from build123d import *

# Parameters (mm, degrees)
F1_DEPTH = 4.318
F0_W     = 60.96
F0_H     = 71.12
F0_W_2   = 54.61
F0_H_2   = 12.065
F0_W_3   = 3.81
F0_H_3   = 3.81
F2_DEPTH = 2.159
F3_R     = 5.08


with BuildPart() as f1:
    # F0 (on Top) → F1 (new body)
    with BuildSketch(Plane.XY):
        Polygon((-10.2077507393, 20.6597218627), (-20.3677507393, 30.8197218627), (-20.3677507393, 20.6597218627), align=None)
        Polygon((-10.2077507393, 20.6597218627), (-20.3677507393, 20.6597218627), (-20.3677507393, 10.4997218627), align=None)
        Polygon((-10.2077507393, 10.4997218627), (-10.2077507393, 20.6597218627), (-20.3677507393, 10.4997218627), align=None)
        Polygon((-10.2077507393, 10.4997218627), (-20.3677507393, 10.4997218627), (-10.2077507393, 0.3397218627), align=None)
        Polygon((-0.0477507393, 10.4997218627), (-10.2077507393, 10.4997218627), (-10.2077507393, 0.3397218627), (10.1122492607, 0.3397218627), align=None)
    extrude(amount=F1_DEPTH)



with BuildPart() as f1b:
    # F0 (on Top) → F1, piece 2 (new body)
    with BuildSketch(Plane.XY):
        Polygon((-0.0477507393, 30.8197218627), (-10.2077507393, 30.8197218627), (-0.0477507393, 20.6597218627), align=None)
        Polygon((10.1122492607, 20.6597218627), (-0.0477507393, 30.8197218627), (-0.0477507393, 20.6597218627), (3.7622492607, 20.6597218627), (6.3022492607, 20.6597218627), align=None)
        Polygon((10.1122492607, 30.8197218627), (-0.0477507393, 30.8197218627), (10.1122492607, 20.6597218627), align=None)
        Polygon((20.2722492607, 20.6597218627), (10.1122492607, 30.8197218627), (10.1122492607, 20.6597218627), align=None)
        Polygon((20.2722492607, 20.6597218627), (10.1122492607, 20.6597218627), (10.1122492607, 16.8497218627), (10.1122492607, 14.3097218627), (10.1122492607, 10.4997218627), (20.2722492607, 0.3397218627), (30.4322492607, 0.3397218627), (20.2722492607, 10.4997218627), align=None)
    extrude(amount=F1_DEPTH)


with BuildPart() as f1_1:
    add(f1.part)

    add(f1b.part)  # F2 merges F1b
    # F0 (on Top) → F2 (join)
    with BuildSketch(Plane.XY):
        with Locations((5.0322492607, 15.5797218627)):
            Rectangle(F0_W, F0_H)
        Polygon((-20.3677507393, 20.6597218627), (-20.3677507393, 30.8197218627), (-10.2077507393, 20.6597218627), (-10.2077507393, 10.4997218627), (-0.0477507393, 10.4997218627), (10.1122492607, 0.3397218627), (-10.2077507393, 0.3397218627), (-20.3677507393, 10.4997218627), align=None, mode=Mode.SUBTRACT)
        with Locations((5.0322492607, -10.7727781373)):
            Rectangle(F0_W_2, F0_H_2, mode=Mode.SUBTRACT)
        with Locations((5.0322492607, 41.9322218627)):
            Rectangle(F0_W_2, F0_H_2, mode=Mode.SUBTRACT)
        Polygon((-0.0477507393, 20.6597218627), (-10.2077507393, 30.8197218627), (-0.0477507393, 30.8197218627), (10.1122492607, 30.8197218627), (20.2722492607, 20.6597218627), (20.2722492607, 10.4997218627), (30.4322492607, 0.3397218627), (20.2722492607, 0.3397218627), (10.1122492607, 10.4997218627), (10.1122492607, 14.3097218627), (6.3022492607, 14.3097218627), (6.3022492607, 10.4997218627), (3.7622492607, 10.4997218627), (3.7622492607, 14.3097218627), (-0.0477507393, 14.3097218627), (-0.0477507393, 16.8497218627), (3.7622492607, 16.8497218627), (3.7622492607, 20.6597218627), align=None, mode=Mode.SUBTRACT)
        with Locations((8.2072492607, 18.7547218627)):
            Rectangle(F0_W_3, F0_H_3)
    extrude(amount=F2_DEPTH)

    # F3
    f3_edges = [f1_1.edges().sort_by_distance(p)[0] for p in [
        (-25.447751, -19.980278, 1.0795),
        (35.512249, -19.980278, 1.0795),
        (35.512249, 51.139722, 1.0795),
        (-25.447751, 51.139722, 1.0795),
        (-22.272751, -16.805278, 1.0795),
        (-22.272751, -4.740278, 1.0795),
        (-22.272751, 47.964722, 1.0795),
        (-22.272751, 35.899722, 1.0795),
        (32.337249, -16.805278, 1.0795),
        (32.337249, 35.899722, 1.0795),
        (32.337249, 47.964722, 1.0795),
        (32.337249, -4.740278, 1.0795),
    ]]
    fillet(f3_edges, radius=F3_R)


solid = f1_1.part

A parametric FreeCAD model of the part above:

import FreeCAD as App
import Part
import Sketcher
from FreeCAD import Vector
Q = App.Units.Quantity


def edges_at(feature, points):
    """Names of the edges that pass closest to the given points."""
    edges = feature.Shape.Edges
    near = lambda p: min(range(len(edges)), key=lambda i: edges[i].distToShape(Part.Vertex(*p))[0])
    return sorted({f"Edge{near(p) + 1}" for p in points})

doc = App.newDocument("Part")
params = doc.addObject("Spreadsheet::Sheet", "Params")
for row, (alias, value) in enumerate([
    ("sketch1_width", "0.8 in"),
    ("sketch1_width2", "0.4 in"),
    ("pad1_length", "0.17 in"),
    ("sketch2_width", "0.4 in"),
    ("pad2_length", "0.17 in"),
    ("sketch3_width", "2.4 in"),
    ("sketch3_width2", "0.4 in"),
    ("sketch3_width3", "0.1 in"),
    ("sketch3_height", "2.8 in"),
    ("sketch3_width4", "2.15 in"),
    ("pad3_length", "0.085 in"),
    ("fillet_radius", "0.2 in"),
], start=1):
    params.set(f"A{row}", alias)
    params.set(f"B{row}", "=" + value)
    params.setAlias(f"B{row}", alias)

body = doc.addObject("PartDesign::Body", "Body")

sketch1 = body.newObject("Sketcher::SketchObject", "Sketch")
sketch1.AttachmentSupport = (doc.getObject("XY_Plane"), [""])
sketch1.MapMode = "FlatFace"
sketch1.addGeometry([
    Part.LineSegment(Vector(-10, 21, 0), Vector(-20, 31, 0)),
    Part.LineSegment(Vector(-20, 31, 0), Vector(-20, 10, 0)),
    Part.LineSegment(Vector(-20, 10, 0), Vector(-10, 0, 0)),
    Part.LineSegment(Vector(-10, 0, 0), Vector(10, 0, 0)),
    Part.LineSegment(Vector(10, 0, 0), Vector(0, 10, 0)),
    Part.LineSegment(Vector(0, 10, 0), Vector(-10, 10, 0)),
    Part.LineSegment(Vector(-10, 10, 0), Vector(-10, 21, 0)),
], False)
sketch1.addConstraint([
    Sketcher.Constraint("Coincident", 0, 2, 1, 1),
    Sketcher.Constraint("Coincident", 1, 2, 2, 1),
    Sketcher.Constraint("Coincident", 2, 2, 3, 1),
    Sketcher.Constraint("Coincident", 3, 2, 4, 1),
    Sketcher.Constraint("Coincident", 4, 2, 5, 1),
    Sketcher.Constraint("Coincident", 5, 2, 6, 1),
    Sketcher.Constraint("Coincident", 6, 2, 0, 1),
    Sketcher.Constraint("Vertical", 1),
    Sketcher.Constraint("Horizontal", 3),
    Sketcher.Constraint("Horizontal", 5),
    Sketcher.Constraint("Vertical", 6),
    Sketcher.Constraint("Parallel", 0, 2),
    Sketcher.Constraint("Parallel", 2, 4),
    Sketcher.Constraint("Horizontal", 1, 2, 4, 2),
    Sketcher.Constraint("Vertical", 2, 2, 5, 2),
    Sketcher.Constraint("Equal", 3, 1),
    Sketcher.Constraint("Equal", 5, 6),
    Sketcher.Constraint("DistanceX", 3, 1, 3, 2, Q("0.8 in")),
    Sketcher.Constraint("DistanceX", 5, 2, 5, 1, Q("0.4 in")),
    Sketcher.Constraint("DistanceX", 0, 2, -1, 1, 20.367751),
    Sketcher.Constraint("DistanceY", -1, 1, 0, 2, 30.819722),
])
sketch1.setExpression("Constraints[17]", "Params.sketch1_width")
sketch1.setExpression("Constraints[18]", "Params.sketch1_width2")
pad1 = body.newObject("PartDesign::Pad", "Pad")
pad1.Profile = sketch1
pad1.setExpression("Length", "Params.pad1_length")
body2 = doc.addObject("PartDesign::Body", "Body001")

sketch2 = body2.newObject("Sketcher::SketchObject", "Sketch001")
sketch2.AttachmentSupport = (doc.getObject("XY_Plane001"), [""])
sketch2.MapMode = "FlatFace"
sketch2.addGeometry([
    Part.LineSegment(Vector(-10, 31, 0), Vector(0, 21, 0)),
    Part.LineSegment(Vector(0, 21, 0), Vector(10, 21, 0)),
    Part.LineSegment(Vector(10, 21, 0), Vector(10, 10, 0)),
    Part.LineSegment(Vector(10, 10, 0), Vector(20, 0, 0)),
    Part.LineSegment(Vector(20, 0, 0), Vector(30, 0, 0)),
    Part.LineSegment(Vector(30, 0, 0), Vector(20, 10, 0)),
    Part.LineSegment(Vector(20, 10, 0), Vector(20, 21, 0)),
    Part.LineSegment(Vector(20, 21, 0), Vector(10, 31, 0)),
    Part.LineSegment(Vector(10, 31, 0), Vector(-10, 31, 0)),
], False)
sketch2.addConstraint([
    Sketcher.Constraint("Coincident", 0, 2, 1, 1),
    Sketcher.Constraint("Coincident", 1, 2, 2, 1),
    Sketcher.Constraint("Coincident", 2, 2, 3, 1),
    Sketcher.Constraint("Coincident", 3, 2, 4, 1),
    Sketcher.Constraint("Coincident", 4, 2, 5, 1),
    Sketcher.Constraint("Coincident", 5, 2, 6, 1),
    Sketcher.Constraint("Coincident", 6, 2, 7, 1),
    Sketcher.Constraint("Coincident", 7, 2, 8, 1),
    Sketcher.Constraint("Coincident", 8, 2, 0, 1),
    Sketcher.Constraint("Horizontal", 1),
    Sketcher.Constraint("Vertical", 2),
    Sketcher.Constraint("Horizontal", 4),
    Sketcher.Constraint("Vertical", 6),
    Sketcher.Constraint("Horizontal", 8),
    Sketcher.Constraint("Parallel", 0, 3),
    Sketcher.Constraint("Parallel", 3, 5),
    Sketcher.Constraint("Parallel", 5, 7),
    Sketcher.Constraint("Horizontal", 2, 2, 5, 2),
    Sketcher.Constraint("Horizontal", 1, 2, 6, 2),
    Sketcher.Constraint("Vertical", 3, 2, 5, 2),
    Sketcher.Constraint("Vertical", 2, 2, 7, 2),
    Sketcher.Constraint("Equal", 1, 4),
    Sketcher.Constraint("Equal", 4, 2),
    Sketcher.Constraint("DistanceX", 1, 1, 1, 2, Q("0.4 in")),
    Sketcher.Constraint("Angle", 0, Q("-45 deg")),
    Sketcher.Constraint("DistanceX", 0, 2, -1, 1, 0.047751),
    Sketcher.Constraint("DistanceY", -1, 1, 0, 2, 20.659722),
])
sketch2.setExpression("Constraints[23]", "Params.sketch2_width")
pad2 = body2.newObject("PartDesign::Pad", "Pad001")
pad2.Profile = sketch2
pad2.setExpression("Length", "Params.pad2_length")
body.AllowCompound = True
doc.recompute()

boolean = body.newObject("PartDesign::Boolean", "Boolean")
boolean.Type = "Fuse"
boolean.addObjects([body2])

sketch3 = body.newObject("Sketcher::SketchObject", "Sketch002")
sketch3.AttachmentSupport = (doc.getObject("XY_Plane"), [""])
sketch3.MapMode = "FlatFace"
sketch3.addGeometry([
    Part.LineSegment(Vector(-25.4, 51.1, 0), Vector(-25.4, -20, 0)),
    Part.LineSegment(Vector(-25.4, -20, 0), Vector(35.5, -20, 0)),
    Part.LineSegment(Vector(35.5, -20, 0), Vector(35.5, 51.1, 0)),
    Part.LineSegment(Vector(35.5, 51.1, 0), Vector(-25.4, 51.1, 0)),
    Part.LineSegment(Vector(32.3, -16.8, 0), Vector(-22.3, -16.8, 0)),
    Part.LineSegment(Vector(-22.3, -16.8, 0), Vector(-22.3, -4.7, 0)),
    Part.LineSegment(Vector(-22.3, -4.7, 0), Vector(32.3, -4.7, 0)),
    Part.LineSegment(Vector(32.3, -4.7, 0), Vector(32.3, -16.8, 0)),
    Part.LineSegment(Vector(-20.4, 10.5, 0), Vector(-20.4, 30.8, 0)),
    Part.LineSegment(Vector(-20.4, 30.8, 0), Vector(-10.2, 20.7, 0)),
    Part.LineSegment(Vector(-10.2, 20.7, 0), Vector(-10.2, 10.5, 0)),
    Part.LineSegment(Vector(-10.2, 10.5, 0), Vector(0, 10.5, 0)),
    Part.LineSegment(Vector(0, 10.5, 0), Vector(10.1, 0.3, 0)),
    Part.LineSegment(Vector(10.1, 0.3, 0), Vector(-10.2, 0.3, 0)),
    Part.LineSegment(Vector(-10.2, 0.3, 0), Vector(-20.4, 10.5, 0)),
    Part.LineSegment(Vector(3.8, 20.7, 0), Vector(0, 20.7, 0)),
    Part.LineSegment(Vector(0, 20.7, 0), Vector(-10.2, 30.8, 0)),
    Part.LineSegment(Vector(-10.2, 30.8, 0), Vector(10.1, 30.8, 0)),
    Part.LineSegment(Vector(10.1, 30.8, 0), Vector(20.3, 20.7, 0)),
    Part.LineSegment(Vector(20.3, 20.7, 0), Vector(20.3, 10.5, 0)),
    Part.LineSegment(Vector(20.3, 10.5, 0), Vector(30.4, 0.3, 0)),
    Part.LineSegment(Vector(30.4, 0.3, 0), Vector(20.3, 0.3, 0)),
    Part.LineSegment(Vector(20.3, 0.3, 0), Vector(10.1, 10.5, 0)),
    Part.LineSegment(Vector(10.1, 10.5, 0), Vector(10.1, 14.3, 0)),
    Part.LineSegment(Vector(10.1, 14.3, 0), Vector(6.3, 14.3, 0)),
    Part.LineSegment(Vector(6.3, 14.3, 0), Vector(6.3, 10.5, 0)),
    Part.LineSegment(Vector(6.3, 10.5, 0), Vector(3.8, 10.5, 0)),
    Part.LineSegment(Vector(3.8, 10.5, 0), Vector(3.8, 14.3, 0)),
    Part.LineSegment(Vector(3.8, 14.3, 0), Vector(0, 14.3, 0)),
    Part.LineSegment(Vector(0, 14.3, 0), Vector(0, 16.8, 0)),
    Part.LineSegment(Vector(0, 16.8, 0), Vector(3.8, 16.8, 0)),
    Part.LineSegment(Vector(3.8, 16.8, 0), Vector(3.8, 20.7, 0)),
    Part.LineSegment(Vector(32.3, 35.9, 0), Vector(-22.3, 35.9, 0)),
    Part.LineSegment(Vector(-22.3, 35.9, 0), Vector(-22.3, 48, 0)),
    Part.LineSegment(Vector(-22.3, 48, 0), Vector(32.3, 48, 0)),
    Part.LineSegment(Vector(32.3, 48, 0), Vector(32.3, 35.9, 0)),
    Part.LineSegment(Vector(6.3, 20.7, 0), Vector(6.3, 16.8, 0)),
    Part.LineSegment(Vector(6.3, 16.8, 0), Vector(10.1, 16.8, 0)),
    Part.LineSegment(Vector(10.1, 16.8, 0), Vector(10.1, 20.7, 0)),
    Part.LineSegment(Vector(10.1, 20.7, 0), Vector(6.3, 20.7, 0)),
], False)
sketch3.addConstraint([
    Sketcher.Constraint("Coincident", 0, 2, 1, 1),
    Sketcher.Constraint("Coincident", 1, 2, 2, 1),
    Sketcher.Constraint("Coincident", 2, 2, 3, 1),
    Sketcher.Constraint("Coincident", 3, 2, 0, 1),
    Sketcher.Constraint("Coincident", 4, 2, 5, 1),
    Sketcher.Constraint("Coincident", 5, 2, 6, 1),
    Sketcher.Constraint("Coincident", 6, 2, 7, 1),
    Sketcher.Constraint("Coincident", 7, 2, 4, 1),
    Sketcher.Constraint("Coincident", 8, 2, 9, 1),
    Sketcher.Constraint("Coincident", 9, 2, 10, 1),
    Sketcher.Constraint("Coincident", 10, 2, 11, 1),
    Sketcher.Constraint("Coincident", 11, 2, 12, 1),
    Sketcher.Constraint("Coincident", 12, 2, 13, 1),
    Sketcher.Constraint("Coincident", 13, 2, 14, 1),
    Sketcher.Constraint("Coincident", 14, 2, 8, 1),
    Sketcher.Constraint("Coincident", 15, 2, 16, 1),
    Sketcher.Constraint("Coincident", 16, 2, 17, 1),
    Sketcher.Constraint("Coincident", 17, 2, 18, 1),
    Sketcher.Constraint("Coincident", 18, 2, 19, 1),
    Sketcher.Constraint("Coincident", 19, 2, 20, 1),
    Sketcher.Constraint("Coincident", 20, 2, 21, 1),
    Sketcher.Constraint("Coincident", 21, 2, 22, 1),
    Sketcher.Constraint("Coincident", 22, 2, 23, 1),
    Sketcher.Constraint("Coincident", 23, 2, 24, 1),
    Sketcher.Constraint("Coincident", 24, 2, 25, 1),
    Sketcher.Constraint("Coincident", 25, 2, 26, 1),
    Sketcher.Constraint("Coincident", 26, 2, 27, 1),
    Sketcher.Constraint("Coincident", 27, 2, 28, 1),
    Sketcher.Constraint("Coincident", 28, 2, 29, 1),
    Sketcher.Constraint("Coincident", 29, 2, 30, 1),
    Sketcher.Constraint("Coincident", 30, 2, 31, 1),
    Sketcher.Constraint("Coincident", 31, 2, 15, 1),
    Sketcher.Constraint("Coincident", 32, 2, 33, 1),
    Sketcher.Constraint("Coincident", 33, 2, 34, 1),
    Sketcher.Constraint("Coincident", 34, 2, 35, 1),
    Sketcher.Constraint("Coincident", 35, 2, 32, 1),
    Sketcher.Constraint("Coincident", 36, 2, 37, 1),
    Sketcher.Constraint("Coincident", 37, 2, 38, 1),
    Sketcher.Constraint("Coincident", 38, 2, 39, 1),
    Sketcher.Constraint("Coincident", 39, 2, 36, 1),
    Sketcher.Constraint("Vertical", 0),
    Sketcher.Constraint("Horizontal", 1),
    Sketcher.Constraint("Vertical", 2),
    Sketcher.Constraint("Horizontal", 3),
    Sketcher.Constraint("Horizontal", 4),
    Sketcher.Constraint("Vertical", 5),
    Sketcher.Constraint("Horizontal", 6),
    Sketcher.Constraint("Vertical", 7),
    Sketcher.Constraint("Vertical", 8),
    Sketcher.Constraint("Vertical", 10),
    Sketcher.Constraint("Horizontal", 11),
    Sketcher.Constraint("Horizontal", 13),
    Sketcher.Constraint("Horizontal", 15),
    Sketcher.Constraint("Horizontal", 17),
    Sketcher.Constraint("Vertical", 19),
    Sketcher.Constraint("Horizontal", 21),
    Sketcher.Constraint("Vertical", 23),
    Sketcher.Constraint("Horizontal", 24),
    Sketcher.Constraint("Vertical", 25),
    Sketcher.Constraint("Horizontal", 26),
    Sketcher.Constraint("Vertical", 27),
    Sketcher.Constraint("Horizontal", 28),
    Sketcher.Constraint("Vertical", 29),
    Sketcher.Constraint("Horizontal", 30),
    Sketcher.Constraint("Vertical", 31),
    Sketcher.Constraint("Horizontal", 32),
    Sketcher.Constraint("Vertical", 33),
    Sketcher.Constraint("Horizontal", 34),
    Sketcher.Constraint("Vertical", 35),
    Sketcher.Constraint("Vertical", 36),
    Sketcher.Constraint("Horizontal", 37),
    Sketcher.Constraint("Vertical", 38),
    Sketcher.Constraint("Horizontal", 39),
    Sketcher.Constraint("Parallel", 9, 12),
    Sketcher.Constraint("Parallel", 12, 14),
    Sketcher.Constraint("Parallel", 14, 16),
    Sketcher.Constraint("Parallel", 16, 18),
    Sketcher.Constraint("Parallel", 18, 20),
    Sketcher.Constraint("Parallel", 20, 22),
    Sketcher.Constraint("Horizontal", 11, 2, 14, 2),
    Sketcher.Constraint("Horizontal", 9, 2, 15, 2),
    Sketcher.Constraint("Horizontal", 8, 2, 16, 2),
    Sketcher.Constraint("Horizontal", 15, 2, 18, 2),
    Sketcher.Constraint("Horizontal", 14, 2, 19, 2),
    Sketcher.Constraint("Horizontal", 13, 2, 20, 2),
    Sketcher.Constraint("Horizontal", 19, 2, 22, 2),
    Sketcher.Constraint("Horizontal", 22, 2, 25, 2),
    Sketcher.Constraint("Horizontal", 24, 2, 27, 2),
    Sketcher.Constraint("Horizontal", 30, 2, 36, 2),
    Sketcher.Constraint("Horizontal", 31, 2, 38, 2),
    Sketcher.Constraint("Vertical", 10, 2, 13, 2),
    Sketcher.Constraint("Vertical", 11, 2, 15, 2),
    Sketcher.Constraint("Vertical", 13, 2, 16, 2),
    Sketcher.Constraint("Vertical", 12, 2, 17, 2),
    Sketcher.Constraint("Vertical", 19, 2, 21, 2),
    Sketcher.Constraint("Vertical", 15, 2, 28, 2),
    Sketcher.Constraint("Vertical", 27, 2, 30, 2),
    Sketcher.Constraint("Vertical", 5, 2, 32, 2),
    Sketcher.Constraint("Vertical", 7, 2, 34, 2),
    Sketcher.Constraint("Vertical", 25, 2, 36, 2),
    Sketcher.Constraint("Vertical", 23, 2, 37, 2),
    Sketcher.Constraint("Equal", 15, 24),
    Sketcher.Constraint("Equal", 17, 8),
    Sketcher.Constraint("Equal", 21, 10),
    Sketcher.Constraint("Equal", 39, 23),
    Sketcher.Constraint("Equal", 26, 29),
    Sketcher.Constraint("Equal", 7, 33),
    Sketcher.Constraint("DistanceX", 1, 1, 1, 2, Q("2.4 in")),
    Sketcher.Constraint("DistanceX", 11, 1, 11, 2, Q("0.4 in")),
    Sketcher.Constraint("DistanceX", 26, 2, 26, 1, Q("0.1 in")),
    Sketcher.Constraint("DistanceY", 0, 2, 0, 1, Q("2.8 in")),
    Sketcher.Constraint("DistanceY", 0, 2, 8, 2, Q("2 in")),
    Sketcher.Constraint("DistanceY", 5, 2, 9, 2, Q("1 in")),
    Sketcher.Constraint("DistanceY", 14, 2, 32, 2, Q("1 in")),
    Sketcher.Constraint("DistanceX", 4, 2, 4, 1, Q("2.15 in")),
    Sketcher.Constraint("DistanceX", 3, 2, 8, 2, Q("0.2 in")),
    Sketcher.Constraint("DistanceY", 5, 1, 5, 2, Q("0.475 in")),
    Sketcher.Constraint("DistanceX", 0, 2, 4, 2, Q("0.125 in")),
    Sketcher.Constraint("DistanceX", 0, 2, -1, 1, 25.447751),
    Sketcher.Constraint("DistanceY", 0, 2, -1, 1, 19.980278),
])
sketch3.setExpression("Constraints[107]", "Params.sketch3_width")
sketch3.setExpression("Constraints[108]", "Params.sketch3_width2")
sketch3.setExpression("Constraints[109]", "Params.sketch3_width3")
sketch3.setExpression("Constraints[110]", "Params.sketch3_height")
sketch3.setExpression("Constraints[114]", "Params.sketch3_width4")
pad3 = body.newObject("PartDesign::Pad", "Pad002")
pad3.Profile = sketch3
pad3.setExpression("Length", "Params.pad3_length")
doc.recompute()

fillet = body.newObject("PartDesign::Fillet", "Fillet")
fillet.Base = (pad3, edges_at(pad3, [
    (-25.448, -19.98, 1.079),
    (35.512, -19.98, 1.079),
    (35.512, 51.14, 1.079),
    (-25.448, 51.14, 1.079),
    (-22.273, -16.805, 1.079),
    (-22.273, -4.74, 1.079),
    (-22.273, 47.965, 1.079),
    (-22.273, 35.9, 1.079),
    (32.337, -16.805, 1.079),
    (32.337, 35.9, 1.079),
    (32.337, 47.965, 1.079),
    (32.337, -4.74, 1.079),
]))
fillet.setExpression("Radius", "Params.fillet_radius")

doc.recompute()
